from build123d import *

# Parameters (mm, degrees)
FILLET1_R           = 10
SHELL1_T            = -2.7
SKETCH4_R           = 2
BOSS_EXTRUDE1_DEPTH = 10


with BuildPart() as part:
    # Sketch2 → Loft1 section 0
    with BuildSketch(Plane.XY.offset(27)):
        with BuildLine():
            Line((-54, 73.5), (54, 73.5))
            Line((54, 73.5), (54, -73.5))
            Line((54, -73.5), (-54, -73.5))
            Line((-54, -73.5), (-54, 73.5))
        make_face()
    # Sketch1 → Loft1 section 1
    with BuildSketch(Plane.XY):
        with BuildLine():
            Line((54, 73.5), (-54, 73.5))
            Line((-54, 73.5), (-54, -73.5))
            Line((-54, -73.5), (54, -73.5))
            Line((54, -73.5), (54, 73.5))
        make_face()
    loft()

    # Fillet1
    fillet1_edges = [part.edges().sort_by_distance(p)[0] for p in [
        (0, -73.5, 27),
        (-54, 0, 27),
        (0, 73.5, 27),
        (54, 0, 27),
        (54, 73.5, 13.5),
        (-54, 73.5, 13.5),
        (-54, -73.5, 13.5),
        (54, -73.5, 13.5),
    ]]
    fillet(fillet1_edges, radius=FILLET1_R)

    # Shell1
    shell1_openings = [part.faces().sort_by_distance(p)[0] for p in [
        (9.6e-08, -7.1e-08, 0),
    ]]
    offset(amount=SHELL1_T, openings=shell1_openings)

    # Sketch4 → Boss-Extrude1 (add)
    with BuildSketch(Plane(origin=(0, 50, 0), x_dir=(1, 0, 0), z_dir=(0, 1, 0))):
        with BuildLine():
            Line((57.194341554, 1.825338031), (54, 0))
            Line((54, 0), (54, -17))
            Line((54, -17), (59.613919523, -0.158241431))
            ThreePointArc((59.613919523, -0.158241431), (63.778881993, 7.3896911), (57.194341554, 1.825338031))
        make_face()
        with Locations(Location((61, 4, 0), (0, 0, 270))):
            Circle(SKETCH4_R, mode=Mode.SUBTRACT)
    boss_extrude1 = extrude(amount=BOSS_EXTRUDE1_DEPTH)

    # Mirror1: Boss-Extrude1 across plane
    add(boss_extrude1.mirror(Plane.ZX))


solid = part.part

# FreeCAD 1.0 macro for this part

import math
import FreeCAD as App
import Part
import Sketcher
from FreeCAD import Vector
Q = App.Units.Quantity


def edges_at(feature, points):
    """Names of the edges that pass closest to the given points."""
    edges = feature.Shape.Edges
    near = lambda p: min(range(len(edges)), key=lambda i: edges[i].distToShape(Part.Vertex(*p))[0])
    return sorted({f"Edge{near(p) + 1}" for p in points})


def faces_at(feature, points):
    """Names of the faces that lie closest to the given points."""
    faces = feature.Shape.Faces
    near = lambda p: min(range(len(faces)), key=lambda i: faces[i].distToShape(Part.Vertex(*p))[0])
    return sorted({f"Face{near(p) + 1}" for p in points})

doc = App.newDocument("Part")
body = doc.addObject("PartDesign::Body", "Body")

sketch1 = body.newObject("Sketcher::SketchObject", "Sketch")
sketch1.AttachmentSupport = (doc.getObject("XY_Plane"), [""])
sketch1.MapMode = "FlatFace"
sketch1.AttachmentOffset = App.Placement(Vector(0, 0, 27), App.Rotation())
sketch1.addGeometry([
    Part.LineSegment(Vector(54, 73.5, 0), Vector(-54, 73.5, 0)),
    Part.LineSegment(Vector(-54, 73.5, 0), Vector(-54, -73.5, 0)),
    Part.LineSegment(Vector(-54, -73.5, 0), Vector(54, -73.5, 0)),
    Part.LineSegment(Vector(54, -73.5, 0), Vector(54, 73.5, 0)),
], False)
sketch1.addConstraint([
    Sketcher.Constraint("Coincident", 0, 2, 1, 1),
    Sketcher.Constraint("Coincident", 1, 2, 2, 1),
    Sketcher.Constraint("Coincident", 2, 2, 3, 1),
    Sketcher.Constraint("Coincident", 3, 2, 0, 1),
    Sketcher.Constraint("Horizontal", 0),
    Sketcher.Constraint("Vertical", 1),
    Sketcher.Constraint("Horizontal", 2),
    Sketcher.Constraint("Vertical", 3),
    Sketcher.Constraint("Symmetric", 0, 2, 2, 2, -1, 1),
    Sketcher.Constraint("DistanceX", 0, 2, 0, 1, Q("108 mm")),
    Sketcher.Constraint("DistanceY", 1, 2, 1, 1, Q("147 mm")),
])

sketch2 = body.newObject("Sketcher::SketchObject", "Sketch001")
sketch2.AttachmentSupport = (doc.getObject("XY_Plane"), [""])
sketch2.MapMode = "FlatFace"
sketch2.addGeometry([
    Part.LineSegment(Vector(54, 73.5, 0), Vector(-54, 73.5, 0)),
    Part.LineSegment(Vector(-54, 73.5, 0), Vector(-54, -73.5, 0)),
    Part.LineSegment(Vector(-54, -73.5, 0), Vector(54, -73.5, 0)),
    Part.LineSegment(Vector(54, -73.5, 0), Vector(54, 73.5, 0)),
], False)
sketch2.addConstraint([
    Sketcher.Constraint("Coincident", 0, 2, 1, 1),
    Sketcher.Constraint("Coincident", 1, 2, 2, 1),
    Sketcher.Constraint("Coincident", 2, 2, 3, 1),
    Sketcher.Constraint("Coincident", 3, 2, 0, 1),
    Sketcher.Constraint("Horizontal", 0),
    Sketcher.Constraint("Vertical", 1),
    Sketcher.Constraint("Horizontal", 2),
    Sketcher.Constraint("Vertical", 3),
    Sketcher.Constraint("Symmetric", 0, 2, 2, 2, -1, 1),
    Sketcher.Constraint("DistanceX", 0, 2, 0, 1, Q("108 mm")),
    Sketcher.Constraint("DistanceY", 1, 2, 1, 1, Q("147 mm")),
])

additiveloft = body.newObject("PartDesign::AdditiveLoft", "AdditiveLoft")
additiveloft.Profile = sketch1
additiveloft.Sections = [sketch2]
doc.recompute()

fillet = body.newObject("PartDesign::Fillet", "Fillet")
fillet.Base = (additiveloft, edges_at(additiveloft, [
    (0, -73.5, 27),
    (-54, 0, 27),
    (0, 73.5, 27),
    (54, 0, 27),
    (54, 73.5, 13.5),
    (-54, 73.5, 13.5),
    (-54, -73.5, 13.5),
    (54, -73.5, 13.5),
]))
fillet.Radius = 10
doc.recompute()

thickness = body.newObject("PartDesign::Thickness", "Thickness")
thickness.Base = (fillet, faces_at(fillet, [(0, 0, 0)]))
thickness.Value = 2.7
thickness.Reversed = True
thickness.Join = "Arc"

sketch3 = body.newObject("Sketcher::SketchObject", "Sketch002")
sketch3.AttachmentSupport = (doc.getObject("XZ_Plane"), [""])
sketch3.MapMode = "FlatFace"
sketch3.AttachmentOffset = App.Placement(Vector(0, 0, -50), App.Rotation())
sketch3.addGeometry([
    Part.LineSegment(Vector(57.194342, -1.825338, 0), Vector(54, 0, 0)),
    Part.LineSegment(Vector(54, 0, 0), Vector(54, 17, 0)),
    Part.LineSegment(Vector(54, 17, 0), Vector(59.61392, 0.158241, 0)),
    Part.ArcOfCircle(Part.Circle(Vector(61, -4, 0), Vector(0, 0, 1), 4.383171), math.radians(150.255119), math.radians(468.434949)),
    Part.Circle(Vector(61, -4, 0), Vector(0, 0, 1), 2),
], False)
sketch3.addConstraint([
    Sketcher.Constraint("Coincident", 0, 2, 1, 1),
    Sketcher.Constraint("Coincident", 1, 2, 2, 1),
    Sketcher.Constraint("Coincident", 2, 2, 3, 2),
    Sketcher.Constraint("Coincident", 3, 1, 0, 1),
    Sketcher.Constraint("Vertical", 1),
    Sketcher.Constraint("Coincident", 4, 3, 3, 3),
    Sketcher.Constraint("PointOnObject", 0, 2, -1),
    Sketcher.Constraint("Diameter", 4, Q("4 mm")),
    Sketcher.Constraint("DistanceY", 1, 1, 1, 2, Q("17 mm")),
    Sketcher.Constraint("DistanceX", -1, 1, 3, 3, Q("61 mm")),
    Sketcher.Constraint("DistanceY", 3, 3, -1, 1, Q("4 mm")),
    Sketcher.Constraint("DistanceX", -1, 1, 0, 2, Q("54 mm")),
    Sketcher.Constraint("Radius", 3, Q("4.383171 mm")),
    Sketcher.Constraint("DistanceX", -1, 1, 2, 2, Q("59.61392 mm")),
    Sketcher.Constraint("DistanceX", -1, 1, 3, 1, Q("57.194342 mm")),
])
pad1 = body.newObject("PartDesign::Pad", "Pad")
pad1.Profile = sketch3
pad1.Length = 10
pad1.Reversed = True
doc.recompute()

mirrored = body.newObject("PartDesign::Mirrored", "Mirrored")
mirrored.Originals = [pad1]
mirrored.MirrorPlane = (doc.getObject("XZ_Plane"), [""])
body.Tip = mirrored

doc.recompute()
